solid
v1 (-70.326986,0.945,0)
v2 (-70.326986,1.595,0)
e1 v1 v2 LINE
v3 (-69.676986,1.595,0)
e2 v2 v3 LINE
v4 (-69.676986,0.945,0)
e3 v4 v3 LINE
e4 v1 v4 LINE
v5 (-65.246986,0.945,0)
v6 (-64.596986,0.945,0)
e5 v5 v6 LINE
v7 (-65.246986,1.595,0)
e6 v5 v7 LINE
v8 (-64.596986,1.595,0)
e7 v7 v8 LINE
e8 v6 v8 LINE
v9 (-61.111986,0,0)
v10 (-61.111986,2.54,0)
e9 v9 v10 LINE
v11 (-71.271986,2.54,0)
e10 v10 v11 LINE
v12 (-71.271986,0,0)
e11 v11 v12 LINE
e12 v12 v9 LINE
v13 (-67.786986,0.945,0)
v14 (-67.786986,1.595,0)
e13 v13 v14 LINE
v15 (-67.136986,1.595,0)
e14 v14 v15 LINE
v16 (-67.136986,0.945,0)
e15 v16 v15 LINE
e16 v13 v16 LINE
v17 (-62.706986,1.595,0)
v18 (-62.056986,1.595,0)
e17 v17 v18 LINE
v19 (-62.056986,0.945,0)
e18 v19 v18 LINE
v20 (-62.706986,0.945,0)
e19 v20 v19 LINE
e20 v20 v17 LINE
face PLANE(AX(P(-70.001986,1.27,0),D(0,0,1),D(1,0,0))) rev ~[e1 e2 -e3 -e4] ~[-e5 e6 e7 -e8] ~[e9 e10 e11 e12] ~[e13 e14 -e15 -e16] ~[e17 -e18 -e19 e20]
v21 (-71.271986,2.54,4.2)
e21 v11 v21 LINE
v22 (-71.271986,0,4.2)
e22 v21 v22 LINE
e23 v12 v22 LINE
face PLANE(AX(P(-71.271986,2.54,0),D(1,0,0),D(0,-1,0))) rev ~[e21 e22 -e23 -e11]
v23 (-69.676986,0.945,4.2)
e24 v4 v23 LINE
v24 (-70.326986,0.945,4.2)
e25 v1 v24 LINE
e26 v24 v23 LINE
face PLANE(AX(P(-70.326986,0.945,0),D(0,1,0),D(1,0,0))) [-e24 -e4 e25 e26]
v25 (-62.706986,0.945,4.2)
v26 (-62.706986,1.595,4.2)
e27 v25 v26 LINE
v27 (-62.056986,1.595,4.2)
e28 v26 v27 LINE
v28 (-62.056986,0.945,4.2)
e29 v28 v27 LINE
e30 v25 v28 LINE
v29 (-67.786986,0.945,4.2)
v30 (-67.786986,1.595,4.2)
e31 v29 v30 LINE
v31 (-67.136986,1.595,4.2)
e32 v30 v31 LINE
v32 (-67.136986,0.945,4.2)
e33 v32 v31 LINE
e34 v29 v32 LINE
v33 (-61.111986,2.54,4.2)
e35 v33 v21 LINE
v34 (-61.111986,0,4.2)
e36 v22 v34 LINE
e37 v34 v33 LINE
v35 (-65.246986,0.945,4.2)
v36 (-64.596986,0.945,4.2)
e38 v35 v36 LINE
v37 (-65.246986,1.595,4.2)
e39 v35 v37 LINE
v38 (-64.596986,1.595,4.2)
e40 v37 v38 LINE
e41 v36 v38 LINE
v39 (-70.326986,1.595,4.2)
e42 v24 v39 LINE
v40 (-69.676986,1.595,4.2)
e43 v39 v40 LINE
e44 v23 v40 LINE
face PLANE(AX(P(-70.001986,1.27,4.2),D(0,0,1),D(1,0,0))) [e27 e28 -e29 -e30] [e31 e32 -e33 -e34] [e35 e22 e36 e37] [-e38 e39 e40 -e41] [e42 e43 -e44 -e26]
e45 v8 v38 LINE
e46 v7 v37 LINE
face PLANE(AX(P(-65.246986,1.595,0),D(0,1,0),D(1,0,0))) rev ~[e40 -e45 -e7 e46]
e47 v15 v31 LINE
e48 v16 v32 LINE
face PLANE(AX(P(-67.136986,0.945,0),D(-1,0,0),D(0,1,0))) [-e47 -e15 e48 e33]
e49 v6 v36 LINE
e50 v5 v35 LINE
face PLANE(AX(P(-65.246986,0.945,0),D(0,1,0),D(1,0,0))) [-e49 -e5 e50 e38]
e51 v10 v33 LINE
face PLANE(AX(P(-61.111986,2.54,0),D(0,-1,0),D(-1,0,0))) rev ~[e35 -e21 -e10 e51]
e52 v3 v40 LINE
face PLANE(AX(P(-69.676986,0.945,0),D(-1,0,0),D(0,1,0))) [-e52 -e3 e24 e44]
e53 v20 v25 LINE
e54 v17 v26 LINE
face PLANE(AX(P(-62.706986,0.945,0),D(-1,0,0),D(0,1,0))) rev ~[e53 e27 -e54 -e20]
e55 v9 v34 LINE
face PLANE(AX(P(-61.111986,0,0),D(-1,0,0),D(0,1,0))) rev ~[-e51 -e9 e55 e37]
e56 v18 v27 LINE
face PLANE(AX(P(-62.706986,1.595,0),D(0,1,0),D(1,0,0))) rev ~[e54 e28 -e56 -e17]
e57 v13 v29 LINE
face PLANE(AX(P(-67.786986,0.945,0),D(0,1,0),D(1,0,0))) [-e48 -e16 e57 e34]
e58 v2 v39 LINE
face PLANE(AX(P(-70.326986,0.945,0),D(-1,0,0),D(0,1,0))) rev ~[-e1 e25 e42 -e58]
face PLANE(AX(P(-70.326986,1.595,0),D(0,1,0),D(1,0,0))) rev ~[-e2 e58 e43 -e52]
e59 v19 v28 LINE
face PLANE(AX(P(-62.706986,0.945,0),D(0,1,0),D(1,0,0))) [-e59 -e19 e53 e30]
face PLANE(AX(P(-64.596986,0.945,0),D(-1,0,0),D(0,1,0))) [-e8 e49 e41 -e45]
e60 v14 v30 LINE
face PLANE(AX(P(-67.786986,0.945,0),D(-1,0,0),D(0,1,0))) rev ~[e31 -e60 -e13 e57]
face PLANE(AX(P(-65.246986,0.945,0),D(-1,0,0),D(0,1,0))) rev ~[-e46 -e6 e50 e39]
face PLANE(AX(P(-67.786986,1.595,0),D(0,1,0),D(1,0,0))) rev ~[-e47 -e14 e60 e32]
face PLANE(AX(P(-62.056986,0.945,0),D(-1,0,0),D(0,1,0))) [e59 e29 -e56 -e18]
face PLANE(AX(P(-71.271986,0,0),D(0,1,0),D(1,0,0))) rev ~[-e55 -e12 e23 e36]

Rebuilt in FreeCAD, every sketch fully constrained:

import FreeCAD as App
import Part
import Sketcher

V = App.Vector
Q = App.Units.Quantity

doc = App.newDocument("Part")
body = doc.addObject("PartDesign::Body", "Body")

# Sketch on XY plane
sketch1 = body.newObject("Sketcher::SketchObject", "Sketch")
sketch1.AttachmentSupport = (doc.getObject("XY_Plane"), [""])
sketch1.MapMode = "FlatFace"
sketch1.addGeometry([
    Part.LineSegment(V(-71.271986, 0, 0), V(-61.111986, 0, 0)),  # 0
    Part.LineSegment(V(-61.111986, 0, 0), V(-61.111986, 2.54, 0)),  # 1
    Part.LineSegment(V(-61.111986, 2.54, 0), V(-71.271986, 2.54, 0)),  # 2
    Part.LineSegment(V(-71.271986, 2.54, 0), V(-71.271986, 0, 0)),  # 3
    Part.LineSegment(V(-69.676986, 0.945, 0), V(-70.326986, 0.945, 0)),  # 4
    Part.LineSegment(V(-70.326986, 0.945, 0), V(-70.326986, 1.595, 0)),  # 5
    Part.LineSegment(V(-70.326986, 1.595, 0), V(-69.676986, 1.595, 0)),  # 6
    Part.LineSegment(V(-69.676986, 1.595, 0), V(-69.676986, 0.945, 0)),  # 7
    Part.LineSegment(V(-67.136986, 0.945, 0), V(-67.786986, 0.945, 0)),  # 8
    Part.LineSegment(V(-67.786986, 0.945, 0), V(-67.786986, 1.595, 0)),  # 9
    Part.LineSegment(V(-67.786986, 1.595, 0), V(-67.136986, 1.595, 0)),  # 10
    Part.LineSegment(V(-67.136986, 1.595, 0), V(-67.136986, 0.945, 0)),  # 11
    Part.LineSegment(V(-64.596986, 0.945, 0), V(-65.246986, 0.945, 0)),  # 12
    Part.LineSegment(V(-65.246986, 0.945, 0), V(-65.246986, 1.595, 0)),  # 13
    Part.LineSegment(V(-65.246986, 1.595, 0), V(-64.596986, 1.595, 0)),  # 14
    Part.LineSegment(V(-64.596986, 1.595, 0), V(-64.596986, 0.945, 0)),  # 15
    Part.LineSegment(V(-62.056986, 0.945, 0), V(-62.706986, 0.945, 0)),  # 16
    Part.LineSegment(V(-62.706986, 0.945, 0), V(-62.706986, 1.595, 0)),  # 17
    Part.LineSegment(V(-62.706986, 1.595, 0), V(-62.056986, 1.595, 0)),  # 18
    Part.LineSegment(V(-62.056986, 1.595, 0), V(-62.056986, 0.945, 0)),  # 19
], False)
sketch1.addConstraint([
    Sketcher.Constraint("Coincident", 0, 2, 1, 1),
    Sketcher.Constraint("Coincident", 1, 2, 2, 1),
    Sketcher.Constraint("Coincident", 2, 2, 3, 1),
    Sketcher.Constraint("Coincident", 3, 2, 0, 1),
    Sketcher.Constraint("Coincident", 4, 2, 5, 1),
    Sketcher.Constraint("Coincident", 5, 2, 6, 1),
    Sketcher.Constraint("Coincident", 6, 2, 7, 1),
    Sketcher.Constraint("Coincident", 7, 2, 4, 1),
    Sketcher.Constraint("Coincident", 8, 2, 9, 1),
    Sketcher.Constraint("Coincident", 9, 2, 10, 1),
    Sketcher.Constraint("Coincident", 10, 2, 11, 1),
    Sketcher.Constraint("Coincident", 11, 2, 8, 1),
    Sketcher.Constraint("Coincident", 12, 2, 13, 1),
    Sketcher.Constraint("Coincident", 13, 2, 14, 1),
    Sketcher.Constraint("Coincident", 14, 2, 15, 1),
    Sketcher.Constraint("Coincident", 15, 2, 12, 1),
    Sketcher.Constraint("Coincident", 16, 2, 17, 1),
    Sketcher.Constraint("Coincident", 17, 2, 18, 1),
    Sketcher.Constraint("Coincident", 18, 2, 19, 1),
    Sketcher.Constraint("Coincident", 19, 2, 16, 1),
    Sketcher.Constraint("Horizontal", 0),
    Sketcher.Constraint("Vertical", 1),
    Sketcher.Constraint("Horizontal", 2),
    Sketcher.Constraint("Vertical", 3),
    Sketcher.Constraint("Horizontal", 4),
    Sketcher.Constraint("Vertical", 5),
    Sketcher.Constraint("Horizontal", 6),
    Sketcher.Constraint("Vertical", 7),
    Sketcher.Constraint("Horizontal", 8),
    Sketcher.Constraint("Vertical", 9),
    Sketcher.Constraint("Horizontal", 10),
    Sketcher.Constraint("Vertical", 11),
    Sketcher.Constraint("Horizontal", 12),
    Sketcher.Constraint("Vertical", 13),
    Sketcher.Constraint("Horizontal", 14),
    Sketcher.Constraint("Vertical", 15),
    Sketcher.Constraint("Horizontal", 16),
    Sketcher.Constraint("Vertical", 17),
    Sketcher.Constraint("Horizontal", 18),
    Sketcher.Constraint("Vertical", 19),
    Sketcher.Constraint("PointOnObject", 0, 2, -1),
    Sketcher.Constraint("Horizontal", 7, 2, 8, 2),
    Sketcher.Constraint("Horizontal", 6, 2, 9, 2),
    Sketcher.Constraint("Horizontal", 11, 2, 12, 2),
    Sketcher.Constraint("Horizontal", 10, 2, 13, 2),
    Sketcher.Constraint("Horizontal", 15, 2, 16, 2),
    Sketcher.Constraint("Horizontal", 14, 2, 17, 2),
    Sketcher.Constraint("Equal", 6, 8),
    Sketcher.Constraint("Equal", 10, 12),
    Sketcher.Constraint("Equal", 14, 16),
    Sketcher.Constraint("Equal", 18, 5),
    Sketcher.Constraint("DistanceX", 0, 1, 0, 2, Q("0.4 in")),
    Sketcher.Constraint("DistanceY", 1, 1, 1, 2, Q("0.1 in")),
    Sketcher.Constraint("DistanceX", 4, 2, 8, 2, Q("0.1 in")),
    Sketcher.Constraint("DistanceX", 8, 2, 12, 2, Q("0.1 in")),
    Sketcher.Constraint("DistanceX", 12, 2, 16, 2, Q("0.1 in")),
    Sketcher.Constraint("DistanceX", 4, 2, 4, 1, 0.65),
    Sketcher.Constraint("DistanceY", -1, 1, 4, 2, 0.945),
    Sketcher.Constraint("DistanceX", 3, 2, 4, 2, 0.945),
    Sketcher.Constraint("DistanceX", 0, 2, -1, 1, 61.111986),
])
pad1 = body.newObject("PartDesign::Pad", "Pad")
pad1.Profile = sketch1
pad1.Length = 4.2

doc.recompute()
